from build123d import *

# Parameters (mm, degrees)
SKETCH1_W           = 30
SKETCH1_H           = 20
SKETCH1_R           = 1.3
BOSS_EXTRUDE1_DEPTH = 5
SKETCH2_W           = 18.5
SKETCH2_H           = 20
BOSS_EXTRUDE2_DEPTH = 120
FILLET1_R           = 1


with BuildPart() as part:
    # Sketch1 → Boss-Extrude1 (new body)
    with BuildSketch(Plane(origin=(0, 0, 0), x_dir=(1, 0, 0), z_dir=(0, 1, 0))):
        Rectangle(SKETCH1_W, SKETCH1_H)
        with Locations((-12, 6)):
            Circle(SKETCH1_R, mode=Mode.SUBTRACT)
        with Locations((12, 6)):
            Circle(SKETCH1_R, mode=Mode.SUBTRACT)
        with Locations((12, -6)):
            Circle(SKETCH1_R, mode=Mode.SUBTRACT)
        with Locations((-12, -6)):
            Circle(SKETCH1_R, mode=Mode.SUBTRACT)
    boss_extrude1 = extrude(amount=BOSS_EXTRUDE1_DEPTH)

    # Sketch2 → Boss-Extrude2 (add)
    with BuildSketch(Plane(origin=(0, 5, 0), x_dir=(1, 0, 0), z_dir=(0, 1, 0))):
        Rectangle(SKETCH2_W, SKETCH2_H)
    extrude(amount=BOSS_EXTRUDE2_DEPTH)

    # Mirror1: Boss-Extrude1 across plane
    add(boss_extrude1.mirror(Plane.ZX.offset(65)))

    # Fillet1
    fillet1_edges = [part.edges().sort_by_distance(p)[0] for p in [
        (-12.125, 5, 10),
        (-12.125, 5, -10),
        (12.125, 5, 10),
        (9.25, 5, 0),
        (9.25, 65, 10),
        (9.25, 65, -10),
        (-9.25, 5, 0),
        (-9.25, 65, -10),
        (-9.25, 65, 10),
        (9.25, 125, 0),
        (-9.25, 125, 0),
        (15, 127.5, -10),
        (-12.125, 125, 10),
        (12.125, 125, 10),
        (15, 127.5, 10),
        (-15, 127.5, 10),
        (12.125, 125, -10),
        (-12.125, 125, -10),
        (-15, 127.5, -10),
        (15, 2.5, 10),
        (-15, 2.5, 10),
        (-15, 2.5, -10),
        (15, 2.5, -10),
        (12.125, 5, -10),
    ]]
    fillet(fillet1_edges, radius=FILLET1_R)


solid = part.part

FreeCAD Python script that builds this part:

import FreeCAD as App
import Part
import Sketcher
from FreeCAD import Vector


def edges_at(feature, points):
    """Names of the edges that pass closest to the given points."""
    edges = feature.Shape.Edges
    near = lambda p: min(range(len(edges)), key=lambda i: edges[i].distToShape(Part.Vertex(*p))[0])
    return sorted({f"Edge{near(p) + 1}" for p in points})


def add_polygon(sketch, points):
    """Adds a closed chain of lines whose ends are joined by coincident constraints."""
    first, n = sketch.GeometryCount, len(points)
    for a, b in zip(points, points[1:] + points[:1]):
        sketch.addGeometry(Part.LineSegment(App.Vector(*a, 0), App.Vector(*b, 0)), False)
    for i in range(n):
        sketch.addConstraint(Sketcher.Constraint("Coincident", first + i, 2, first + (i + 1) % n, 1))

doc = App.newDocument("Part")
body = doc.addObject("PartDesign::Body", "Body")

sketch1 = doc.addObject("Sketcher::SketchObject", "Sketch")
body.addObject(sketch1)
sketch1.AttachmentSupport = (doc.XZ_Plane, [""])
sketch1.MapMode = "FlatFace"
add_polygon(sketch1, [(-15, -10), (-15, 10), (15, 10), (15, -10)])
sketch1.addGeometry(Part.Circle(Vector(-12, 6, 0), Vector(0, 0, 1), 1.3), False)
sketch1.addGeometry(Part.Circle(Vector(12, 6, 0), Vector(0, 0, 1), 1.3), False)
sketch1.addGeometry(Part.Circle(Vector(-12, -6, 0), Vector(0, 0, 1), 1.3), False)
sketch1.addGeometry(Part.Circle(Vector(12, -6, 0), Vector(0, 0, 1), 1.3), False)
sketch1.addConstraint([
    Sketcher.Constraint("Vertical", 0),
    Sketcher.Constraint("Horizontal", 1),
    Sketcher.Constraint("Vertical", 2),
    Sketcher.Constraint("Horizontal", 3),
    Sketcher.Constraint("Equal", 4, 5),
    Sketcher.Constraint("Equal", 5, 6),
    Sketcher.Constraint("Equal", 6, 7),
    Sketcher.Constraint("Symmetric", 5, 3, 6, 3, -1, 1),
    Sketcher.Constraint("Symmetric", 4, 3, 7, 3, -1, 1),
    Sketcher.Constraint("Symmetric", 0, 2, 2, 2, -1, 1),
    Sketcher.Constraint("Symmetric", 4, 3, 5, 3, -2),
    Sketcher.Constraint("Diameter", 4, 2.6),
    Sketcher.Constraint("DistanceX", 1, 1, 1, 2, 30.0),
    Sketcher.Constraint("DistanceY", 0, 1, 0, 2, 20.0),
    Sketcher.Constraint("DistanceX", 4, 3, -1, 1, 12.0),
    Sketcher.Constraint("DistanceY", -1, 1, 4, 3, 6.0),
])
pad1 = doc.addObject("PartDesign::Pad", "Pad")
body.addObject(pad1)
pad1.Profile = sketch1
pad1.Length = 5
pad1.Reversed = True

sketch2 = doc.addObject("Sketcher::SketchObject", "Sketch001")
body.addObject(sketch2)
sketch2.AttachmentSupport = (doc.XZ_Plane, [""])
sketch2.MapMode = "FlatFace"
sketch2.AttachmentOffset = App.Placement(Vector(0, 0, -5), App.Rotation())
add_polygon(sketch2, [(-9.25, -10), (-9.25, 10), (9.25, 10), (9.25, -10)])
sketch2.addConstraint([
    Sketcher.Constraint("Vertical", 0),
    Sketcher.Constraint("Horizontal", 1),
    Sketcher.Constraint("Vertical", 2),
    Sketcher.Constraint("Horizontal", 3),
    Sketcher.Constraint("Symmetric", 0, 2, 2, 2, -1, 1),
    Sketcher.Constraint("DistanceY", 0, 1, 0, 2, 20.0),
    Sketcher.Constraint("DistanceX", 1, 1, 1, 2, 18.5),
])
pad2 = doc.addObject("PartDesign::Pad", "Pad001")
body.addObject(pad2)
pad2.Profile = sketch2
pad2.Length = 120
pad2.Reversed = True
doc.recompute()

datumplane = doc.addObject("PartDesign::Plane", "DatumPlane")
body.addObject(datumplane)
datumplane.AttachmentSupport = (doc.XZ_Plane, [""])
datumplane.MapMode = "FlatFace"
datumplane.AttachmentOffset = App.Placement(Vector(0, 0, -65), App.Rotation())
mirrored = doc.addObject("PartDesign::Mirrored", "Mirrored")
body.addObject(mirrored)
mirrored.Originals = [pad1]
mirrored.MirrorPlane = (datumplane, [""])
body.Tip = mirrored
doc.recompute()

fillet = doc.addObject("PartDesign::Fillet", "Fillet")
body.addObject(fillet)
fillet.Base = (mirrored, edges_at(mirrored, [
    (-12.125, 5, 10),
    (-12.125, 5, -10),
    (12.125, 5, 10),
    (9.25, 5, 0),
    (9.25, 65, 10),
    (9.25, 65, -10),
    (-9.25, 5, 0),
    (-9.25, 65, -10),
    (-9.25, 65, 10),
    (9.25, 125, 0),
    (-9.25, 125, 0),
    (15, 127.5, -10),
    (-12.125, 125, 10),
    (12.125, 125, 10),
    (15, 127.5, 10),
    (-15, 127.5, 10),
    (12.125, 125, -10),
    (-12.125, 125, -10),
    (-15, 127.5, -10),
    (15, 2.5, 10),
    (-15, 2.5, 10),
    (-15, 2.5, -10),
    (15, 2.5, -10),
    (12.125, 5, -10),
]))
fillet.Radius = 1

doc.recompute()
